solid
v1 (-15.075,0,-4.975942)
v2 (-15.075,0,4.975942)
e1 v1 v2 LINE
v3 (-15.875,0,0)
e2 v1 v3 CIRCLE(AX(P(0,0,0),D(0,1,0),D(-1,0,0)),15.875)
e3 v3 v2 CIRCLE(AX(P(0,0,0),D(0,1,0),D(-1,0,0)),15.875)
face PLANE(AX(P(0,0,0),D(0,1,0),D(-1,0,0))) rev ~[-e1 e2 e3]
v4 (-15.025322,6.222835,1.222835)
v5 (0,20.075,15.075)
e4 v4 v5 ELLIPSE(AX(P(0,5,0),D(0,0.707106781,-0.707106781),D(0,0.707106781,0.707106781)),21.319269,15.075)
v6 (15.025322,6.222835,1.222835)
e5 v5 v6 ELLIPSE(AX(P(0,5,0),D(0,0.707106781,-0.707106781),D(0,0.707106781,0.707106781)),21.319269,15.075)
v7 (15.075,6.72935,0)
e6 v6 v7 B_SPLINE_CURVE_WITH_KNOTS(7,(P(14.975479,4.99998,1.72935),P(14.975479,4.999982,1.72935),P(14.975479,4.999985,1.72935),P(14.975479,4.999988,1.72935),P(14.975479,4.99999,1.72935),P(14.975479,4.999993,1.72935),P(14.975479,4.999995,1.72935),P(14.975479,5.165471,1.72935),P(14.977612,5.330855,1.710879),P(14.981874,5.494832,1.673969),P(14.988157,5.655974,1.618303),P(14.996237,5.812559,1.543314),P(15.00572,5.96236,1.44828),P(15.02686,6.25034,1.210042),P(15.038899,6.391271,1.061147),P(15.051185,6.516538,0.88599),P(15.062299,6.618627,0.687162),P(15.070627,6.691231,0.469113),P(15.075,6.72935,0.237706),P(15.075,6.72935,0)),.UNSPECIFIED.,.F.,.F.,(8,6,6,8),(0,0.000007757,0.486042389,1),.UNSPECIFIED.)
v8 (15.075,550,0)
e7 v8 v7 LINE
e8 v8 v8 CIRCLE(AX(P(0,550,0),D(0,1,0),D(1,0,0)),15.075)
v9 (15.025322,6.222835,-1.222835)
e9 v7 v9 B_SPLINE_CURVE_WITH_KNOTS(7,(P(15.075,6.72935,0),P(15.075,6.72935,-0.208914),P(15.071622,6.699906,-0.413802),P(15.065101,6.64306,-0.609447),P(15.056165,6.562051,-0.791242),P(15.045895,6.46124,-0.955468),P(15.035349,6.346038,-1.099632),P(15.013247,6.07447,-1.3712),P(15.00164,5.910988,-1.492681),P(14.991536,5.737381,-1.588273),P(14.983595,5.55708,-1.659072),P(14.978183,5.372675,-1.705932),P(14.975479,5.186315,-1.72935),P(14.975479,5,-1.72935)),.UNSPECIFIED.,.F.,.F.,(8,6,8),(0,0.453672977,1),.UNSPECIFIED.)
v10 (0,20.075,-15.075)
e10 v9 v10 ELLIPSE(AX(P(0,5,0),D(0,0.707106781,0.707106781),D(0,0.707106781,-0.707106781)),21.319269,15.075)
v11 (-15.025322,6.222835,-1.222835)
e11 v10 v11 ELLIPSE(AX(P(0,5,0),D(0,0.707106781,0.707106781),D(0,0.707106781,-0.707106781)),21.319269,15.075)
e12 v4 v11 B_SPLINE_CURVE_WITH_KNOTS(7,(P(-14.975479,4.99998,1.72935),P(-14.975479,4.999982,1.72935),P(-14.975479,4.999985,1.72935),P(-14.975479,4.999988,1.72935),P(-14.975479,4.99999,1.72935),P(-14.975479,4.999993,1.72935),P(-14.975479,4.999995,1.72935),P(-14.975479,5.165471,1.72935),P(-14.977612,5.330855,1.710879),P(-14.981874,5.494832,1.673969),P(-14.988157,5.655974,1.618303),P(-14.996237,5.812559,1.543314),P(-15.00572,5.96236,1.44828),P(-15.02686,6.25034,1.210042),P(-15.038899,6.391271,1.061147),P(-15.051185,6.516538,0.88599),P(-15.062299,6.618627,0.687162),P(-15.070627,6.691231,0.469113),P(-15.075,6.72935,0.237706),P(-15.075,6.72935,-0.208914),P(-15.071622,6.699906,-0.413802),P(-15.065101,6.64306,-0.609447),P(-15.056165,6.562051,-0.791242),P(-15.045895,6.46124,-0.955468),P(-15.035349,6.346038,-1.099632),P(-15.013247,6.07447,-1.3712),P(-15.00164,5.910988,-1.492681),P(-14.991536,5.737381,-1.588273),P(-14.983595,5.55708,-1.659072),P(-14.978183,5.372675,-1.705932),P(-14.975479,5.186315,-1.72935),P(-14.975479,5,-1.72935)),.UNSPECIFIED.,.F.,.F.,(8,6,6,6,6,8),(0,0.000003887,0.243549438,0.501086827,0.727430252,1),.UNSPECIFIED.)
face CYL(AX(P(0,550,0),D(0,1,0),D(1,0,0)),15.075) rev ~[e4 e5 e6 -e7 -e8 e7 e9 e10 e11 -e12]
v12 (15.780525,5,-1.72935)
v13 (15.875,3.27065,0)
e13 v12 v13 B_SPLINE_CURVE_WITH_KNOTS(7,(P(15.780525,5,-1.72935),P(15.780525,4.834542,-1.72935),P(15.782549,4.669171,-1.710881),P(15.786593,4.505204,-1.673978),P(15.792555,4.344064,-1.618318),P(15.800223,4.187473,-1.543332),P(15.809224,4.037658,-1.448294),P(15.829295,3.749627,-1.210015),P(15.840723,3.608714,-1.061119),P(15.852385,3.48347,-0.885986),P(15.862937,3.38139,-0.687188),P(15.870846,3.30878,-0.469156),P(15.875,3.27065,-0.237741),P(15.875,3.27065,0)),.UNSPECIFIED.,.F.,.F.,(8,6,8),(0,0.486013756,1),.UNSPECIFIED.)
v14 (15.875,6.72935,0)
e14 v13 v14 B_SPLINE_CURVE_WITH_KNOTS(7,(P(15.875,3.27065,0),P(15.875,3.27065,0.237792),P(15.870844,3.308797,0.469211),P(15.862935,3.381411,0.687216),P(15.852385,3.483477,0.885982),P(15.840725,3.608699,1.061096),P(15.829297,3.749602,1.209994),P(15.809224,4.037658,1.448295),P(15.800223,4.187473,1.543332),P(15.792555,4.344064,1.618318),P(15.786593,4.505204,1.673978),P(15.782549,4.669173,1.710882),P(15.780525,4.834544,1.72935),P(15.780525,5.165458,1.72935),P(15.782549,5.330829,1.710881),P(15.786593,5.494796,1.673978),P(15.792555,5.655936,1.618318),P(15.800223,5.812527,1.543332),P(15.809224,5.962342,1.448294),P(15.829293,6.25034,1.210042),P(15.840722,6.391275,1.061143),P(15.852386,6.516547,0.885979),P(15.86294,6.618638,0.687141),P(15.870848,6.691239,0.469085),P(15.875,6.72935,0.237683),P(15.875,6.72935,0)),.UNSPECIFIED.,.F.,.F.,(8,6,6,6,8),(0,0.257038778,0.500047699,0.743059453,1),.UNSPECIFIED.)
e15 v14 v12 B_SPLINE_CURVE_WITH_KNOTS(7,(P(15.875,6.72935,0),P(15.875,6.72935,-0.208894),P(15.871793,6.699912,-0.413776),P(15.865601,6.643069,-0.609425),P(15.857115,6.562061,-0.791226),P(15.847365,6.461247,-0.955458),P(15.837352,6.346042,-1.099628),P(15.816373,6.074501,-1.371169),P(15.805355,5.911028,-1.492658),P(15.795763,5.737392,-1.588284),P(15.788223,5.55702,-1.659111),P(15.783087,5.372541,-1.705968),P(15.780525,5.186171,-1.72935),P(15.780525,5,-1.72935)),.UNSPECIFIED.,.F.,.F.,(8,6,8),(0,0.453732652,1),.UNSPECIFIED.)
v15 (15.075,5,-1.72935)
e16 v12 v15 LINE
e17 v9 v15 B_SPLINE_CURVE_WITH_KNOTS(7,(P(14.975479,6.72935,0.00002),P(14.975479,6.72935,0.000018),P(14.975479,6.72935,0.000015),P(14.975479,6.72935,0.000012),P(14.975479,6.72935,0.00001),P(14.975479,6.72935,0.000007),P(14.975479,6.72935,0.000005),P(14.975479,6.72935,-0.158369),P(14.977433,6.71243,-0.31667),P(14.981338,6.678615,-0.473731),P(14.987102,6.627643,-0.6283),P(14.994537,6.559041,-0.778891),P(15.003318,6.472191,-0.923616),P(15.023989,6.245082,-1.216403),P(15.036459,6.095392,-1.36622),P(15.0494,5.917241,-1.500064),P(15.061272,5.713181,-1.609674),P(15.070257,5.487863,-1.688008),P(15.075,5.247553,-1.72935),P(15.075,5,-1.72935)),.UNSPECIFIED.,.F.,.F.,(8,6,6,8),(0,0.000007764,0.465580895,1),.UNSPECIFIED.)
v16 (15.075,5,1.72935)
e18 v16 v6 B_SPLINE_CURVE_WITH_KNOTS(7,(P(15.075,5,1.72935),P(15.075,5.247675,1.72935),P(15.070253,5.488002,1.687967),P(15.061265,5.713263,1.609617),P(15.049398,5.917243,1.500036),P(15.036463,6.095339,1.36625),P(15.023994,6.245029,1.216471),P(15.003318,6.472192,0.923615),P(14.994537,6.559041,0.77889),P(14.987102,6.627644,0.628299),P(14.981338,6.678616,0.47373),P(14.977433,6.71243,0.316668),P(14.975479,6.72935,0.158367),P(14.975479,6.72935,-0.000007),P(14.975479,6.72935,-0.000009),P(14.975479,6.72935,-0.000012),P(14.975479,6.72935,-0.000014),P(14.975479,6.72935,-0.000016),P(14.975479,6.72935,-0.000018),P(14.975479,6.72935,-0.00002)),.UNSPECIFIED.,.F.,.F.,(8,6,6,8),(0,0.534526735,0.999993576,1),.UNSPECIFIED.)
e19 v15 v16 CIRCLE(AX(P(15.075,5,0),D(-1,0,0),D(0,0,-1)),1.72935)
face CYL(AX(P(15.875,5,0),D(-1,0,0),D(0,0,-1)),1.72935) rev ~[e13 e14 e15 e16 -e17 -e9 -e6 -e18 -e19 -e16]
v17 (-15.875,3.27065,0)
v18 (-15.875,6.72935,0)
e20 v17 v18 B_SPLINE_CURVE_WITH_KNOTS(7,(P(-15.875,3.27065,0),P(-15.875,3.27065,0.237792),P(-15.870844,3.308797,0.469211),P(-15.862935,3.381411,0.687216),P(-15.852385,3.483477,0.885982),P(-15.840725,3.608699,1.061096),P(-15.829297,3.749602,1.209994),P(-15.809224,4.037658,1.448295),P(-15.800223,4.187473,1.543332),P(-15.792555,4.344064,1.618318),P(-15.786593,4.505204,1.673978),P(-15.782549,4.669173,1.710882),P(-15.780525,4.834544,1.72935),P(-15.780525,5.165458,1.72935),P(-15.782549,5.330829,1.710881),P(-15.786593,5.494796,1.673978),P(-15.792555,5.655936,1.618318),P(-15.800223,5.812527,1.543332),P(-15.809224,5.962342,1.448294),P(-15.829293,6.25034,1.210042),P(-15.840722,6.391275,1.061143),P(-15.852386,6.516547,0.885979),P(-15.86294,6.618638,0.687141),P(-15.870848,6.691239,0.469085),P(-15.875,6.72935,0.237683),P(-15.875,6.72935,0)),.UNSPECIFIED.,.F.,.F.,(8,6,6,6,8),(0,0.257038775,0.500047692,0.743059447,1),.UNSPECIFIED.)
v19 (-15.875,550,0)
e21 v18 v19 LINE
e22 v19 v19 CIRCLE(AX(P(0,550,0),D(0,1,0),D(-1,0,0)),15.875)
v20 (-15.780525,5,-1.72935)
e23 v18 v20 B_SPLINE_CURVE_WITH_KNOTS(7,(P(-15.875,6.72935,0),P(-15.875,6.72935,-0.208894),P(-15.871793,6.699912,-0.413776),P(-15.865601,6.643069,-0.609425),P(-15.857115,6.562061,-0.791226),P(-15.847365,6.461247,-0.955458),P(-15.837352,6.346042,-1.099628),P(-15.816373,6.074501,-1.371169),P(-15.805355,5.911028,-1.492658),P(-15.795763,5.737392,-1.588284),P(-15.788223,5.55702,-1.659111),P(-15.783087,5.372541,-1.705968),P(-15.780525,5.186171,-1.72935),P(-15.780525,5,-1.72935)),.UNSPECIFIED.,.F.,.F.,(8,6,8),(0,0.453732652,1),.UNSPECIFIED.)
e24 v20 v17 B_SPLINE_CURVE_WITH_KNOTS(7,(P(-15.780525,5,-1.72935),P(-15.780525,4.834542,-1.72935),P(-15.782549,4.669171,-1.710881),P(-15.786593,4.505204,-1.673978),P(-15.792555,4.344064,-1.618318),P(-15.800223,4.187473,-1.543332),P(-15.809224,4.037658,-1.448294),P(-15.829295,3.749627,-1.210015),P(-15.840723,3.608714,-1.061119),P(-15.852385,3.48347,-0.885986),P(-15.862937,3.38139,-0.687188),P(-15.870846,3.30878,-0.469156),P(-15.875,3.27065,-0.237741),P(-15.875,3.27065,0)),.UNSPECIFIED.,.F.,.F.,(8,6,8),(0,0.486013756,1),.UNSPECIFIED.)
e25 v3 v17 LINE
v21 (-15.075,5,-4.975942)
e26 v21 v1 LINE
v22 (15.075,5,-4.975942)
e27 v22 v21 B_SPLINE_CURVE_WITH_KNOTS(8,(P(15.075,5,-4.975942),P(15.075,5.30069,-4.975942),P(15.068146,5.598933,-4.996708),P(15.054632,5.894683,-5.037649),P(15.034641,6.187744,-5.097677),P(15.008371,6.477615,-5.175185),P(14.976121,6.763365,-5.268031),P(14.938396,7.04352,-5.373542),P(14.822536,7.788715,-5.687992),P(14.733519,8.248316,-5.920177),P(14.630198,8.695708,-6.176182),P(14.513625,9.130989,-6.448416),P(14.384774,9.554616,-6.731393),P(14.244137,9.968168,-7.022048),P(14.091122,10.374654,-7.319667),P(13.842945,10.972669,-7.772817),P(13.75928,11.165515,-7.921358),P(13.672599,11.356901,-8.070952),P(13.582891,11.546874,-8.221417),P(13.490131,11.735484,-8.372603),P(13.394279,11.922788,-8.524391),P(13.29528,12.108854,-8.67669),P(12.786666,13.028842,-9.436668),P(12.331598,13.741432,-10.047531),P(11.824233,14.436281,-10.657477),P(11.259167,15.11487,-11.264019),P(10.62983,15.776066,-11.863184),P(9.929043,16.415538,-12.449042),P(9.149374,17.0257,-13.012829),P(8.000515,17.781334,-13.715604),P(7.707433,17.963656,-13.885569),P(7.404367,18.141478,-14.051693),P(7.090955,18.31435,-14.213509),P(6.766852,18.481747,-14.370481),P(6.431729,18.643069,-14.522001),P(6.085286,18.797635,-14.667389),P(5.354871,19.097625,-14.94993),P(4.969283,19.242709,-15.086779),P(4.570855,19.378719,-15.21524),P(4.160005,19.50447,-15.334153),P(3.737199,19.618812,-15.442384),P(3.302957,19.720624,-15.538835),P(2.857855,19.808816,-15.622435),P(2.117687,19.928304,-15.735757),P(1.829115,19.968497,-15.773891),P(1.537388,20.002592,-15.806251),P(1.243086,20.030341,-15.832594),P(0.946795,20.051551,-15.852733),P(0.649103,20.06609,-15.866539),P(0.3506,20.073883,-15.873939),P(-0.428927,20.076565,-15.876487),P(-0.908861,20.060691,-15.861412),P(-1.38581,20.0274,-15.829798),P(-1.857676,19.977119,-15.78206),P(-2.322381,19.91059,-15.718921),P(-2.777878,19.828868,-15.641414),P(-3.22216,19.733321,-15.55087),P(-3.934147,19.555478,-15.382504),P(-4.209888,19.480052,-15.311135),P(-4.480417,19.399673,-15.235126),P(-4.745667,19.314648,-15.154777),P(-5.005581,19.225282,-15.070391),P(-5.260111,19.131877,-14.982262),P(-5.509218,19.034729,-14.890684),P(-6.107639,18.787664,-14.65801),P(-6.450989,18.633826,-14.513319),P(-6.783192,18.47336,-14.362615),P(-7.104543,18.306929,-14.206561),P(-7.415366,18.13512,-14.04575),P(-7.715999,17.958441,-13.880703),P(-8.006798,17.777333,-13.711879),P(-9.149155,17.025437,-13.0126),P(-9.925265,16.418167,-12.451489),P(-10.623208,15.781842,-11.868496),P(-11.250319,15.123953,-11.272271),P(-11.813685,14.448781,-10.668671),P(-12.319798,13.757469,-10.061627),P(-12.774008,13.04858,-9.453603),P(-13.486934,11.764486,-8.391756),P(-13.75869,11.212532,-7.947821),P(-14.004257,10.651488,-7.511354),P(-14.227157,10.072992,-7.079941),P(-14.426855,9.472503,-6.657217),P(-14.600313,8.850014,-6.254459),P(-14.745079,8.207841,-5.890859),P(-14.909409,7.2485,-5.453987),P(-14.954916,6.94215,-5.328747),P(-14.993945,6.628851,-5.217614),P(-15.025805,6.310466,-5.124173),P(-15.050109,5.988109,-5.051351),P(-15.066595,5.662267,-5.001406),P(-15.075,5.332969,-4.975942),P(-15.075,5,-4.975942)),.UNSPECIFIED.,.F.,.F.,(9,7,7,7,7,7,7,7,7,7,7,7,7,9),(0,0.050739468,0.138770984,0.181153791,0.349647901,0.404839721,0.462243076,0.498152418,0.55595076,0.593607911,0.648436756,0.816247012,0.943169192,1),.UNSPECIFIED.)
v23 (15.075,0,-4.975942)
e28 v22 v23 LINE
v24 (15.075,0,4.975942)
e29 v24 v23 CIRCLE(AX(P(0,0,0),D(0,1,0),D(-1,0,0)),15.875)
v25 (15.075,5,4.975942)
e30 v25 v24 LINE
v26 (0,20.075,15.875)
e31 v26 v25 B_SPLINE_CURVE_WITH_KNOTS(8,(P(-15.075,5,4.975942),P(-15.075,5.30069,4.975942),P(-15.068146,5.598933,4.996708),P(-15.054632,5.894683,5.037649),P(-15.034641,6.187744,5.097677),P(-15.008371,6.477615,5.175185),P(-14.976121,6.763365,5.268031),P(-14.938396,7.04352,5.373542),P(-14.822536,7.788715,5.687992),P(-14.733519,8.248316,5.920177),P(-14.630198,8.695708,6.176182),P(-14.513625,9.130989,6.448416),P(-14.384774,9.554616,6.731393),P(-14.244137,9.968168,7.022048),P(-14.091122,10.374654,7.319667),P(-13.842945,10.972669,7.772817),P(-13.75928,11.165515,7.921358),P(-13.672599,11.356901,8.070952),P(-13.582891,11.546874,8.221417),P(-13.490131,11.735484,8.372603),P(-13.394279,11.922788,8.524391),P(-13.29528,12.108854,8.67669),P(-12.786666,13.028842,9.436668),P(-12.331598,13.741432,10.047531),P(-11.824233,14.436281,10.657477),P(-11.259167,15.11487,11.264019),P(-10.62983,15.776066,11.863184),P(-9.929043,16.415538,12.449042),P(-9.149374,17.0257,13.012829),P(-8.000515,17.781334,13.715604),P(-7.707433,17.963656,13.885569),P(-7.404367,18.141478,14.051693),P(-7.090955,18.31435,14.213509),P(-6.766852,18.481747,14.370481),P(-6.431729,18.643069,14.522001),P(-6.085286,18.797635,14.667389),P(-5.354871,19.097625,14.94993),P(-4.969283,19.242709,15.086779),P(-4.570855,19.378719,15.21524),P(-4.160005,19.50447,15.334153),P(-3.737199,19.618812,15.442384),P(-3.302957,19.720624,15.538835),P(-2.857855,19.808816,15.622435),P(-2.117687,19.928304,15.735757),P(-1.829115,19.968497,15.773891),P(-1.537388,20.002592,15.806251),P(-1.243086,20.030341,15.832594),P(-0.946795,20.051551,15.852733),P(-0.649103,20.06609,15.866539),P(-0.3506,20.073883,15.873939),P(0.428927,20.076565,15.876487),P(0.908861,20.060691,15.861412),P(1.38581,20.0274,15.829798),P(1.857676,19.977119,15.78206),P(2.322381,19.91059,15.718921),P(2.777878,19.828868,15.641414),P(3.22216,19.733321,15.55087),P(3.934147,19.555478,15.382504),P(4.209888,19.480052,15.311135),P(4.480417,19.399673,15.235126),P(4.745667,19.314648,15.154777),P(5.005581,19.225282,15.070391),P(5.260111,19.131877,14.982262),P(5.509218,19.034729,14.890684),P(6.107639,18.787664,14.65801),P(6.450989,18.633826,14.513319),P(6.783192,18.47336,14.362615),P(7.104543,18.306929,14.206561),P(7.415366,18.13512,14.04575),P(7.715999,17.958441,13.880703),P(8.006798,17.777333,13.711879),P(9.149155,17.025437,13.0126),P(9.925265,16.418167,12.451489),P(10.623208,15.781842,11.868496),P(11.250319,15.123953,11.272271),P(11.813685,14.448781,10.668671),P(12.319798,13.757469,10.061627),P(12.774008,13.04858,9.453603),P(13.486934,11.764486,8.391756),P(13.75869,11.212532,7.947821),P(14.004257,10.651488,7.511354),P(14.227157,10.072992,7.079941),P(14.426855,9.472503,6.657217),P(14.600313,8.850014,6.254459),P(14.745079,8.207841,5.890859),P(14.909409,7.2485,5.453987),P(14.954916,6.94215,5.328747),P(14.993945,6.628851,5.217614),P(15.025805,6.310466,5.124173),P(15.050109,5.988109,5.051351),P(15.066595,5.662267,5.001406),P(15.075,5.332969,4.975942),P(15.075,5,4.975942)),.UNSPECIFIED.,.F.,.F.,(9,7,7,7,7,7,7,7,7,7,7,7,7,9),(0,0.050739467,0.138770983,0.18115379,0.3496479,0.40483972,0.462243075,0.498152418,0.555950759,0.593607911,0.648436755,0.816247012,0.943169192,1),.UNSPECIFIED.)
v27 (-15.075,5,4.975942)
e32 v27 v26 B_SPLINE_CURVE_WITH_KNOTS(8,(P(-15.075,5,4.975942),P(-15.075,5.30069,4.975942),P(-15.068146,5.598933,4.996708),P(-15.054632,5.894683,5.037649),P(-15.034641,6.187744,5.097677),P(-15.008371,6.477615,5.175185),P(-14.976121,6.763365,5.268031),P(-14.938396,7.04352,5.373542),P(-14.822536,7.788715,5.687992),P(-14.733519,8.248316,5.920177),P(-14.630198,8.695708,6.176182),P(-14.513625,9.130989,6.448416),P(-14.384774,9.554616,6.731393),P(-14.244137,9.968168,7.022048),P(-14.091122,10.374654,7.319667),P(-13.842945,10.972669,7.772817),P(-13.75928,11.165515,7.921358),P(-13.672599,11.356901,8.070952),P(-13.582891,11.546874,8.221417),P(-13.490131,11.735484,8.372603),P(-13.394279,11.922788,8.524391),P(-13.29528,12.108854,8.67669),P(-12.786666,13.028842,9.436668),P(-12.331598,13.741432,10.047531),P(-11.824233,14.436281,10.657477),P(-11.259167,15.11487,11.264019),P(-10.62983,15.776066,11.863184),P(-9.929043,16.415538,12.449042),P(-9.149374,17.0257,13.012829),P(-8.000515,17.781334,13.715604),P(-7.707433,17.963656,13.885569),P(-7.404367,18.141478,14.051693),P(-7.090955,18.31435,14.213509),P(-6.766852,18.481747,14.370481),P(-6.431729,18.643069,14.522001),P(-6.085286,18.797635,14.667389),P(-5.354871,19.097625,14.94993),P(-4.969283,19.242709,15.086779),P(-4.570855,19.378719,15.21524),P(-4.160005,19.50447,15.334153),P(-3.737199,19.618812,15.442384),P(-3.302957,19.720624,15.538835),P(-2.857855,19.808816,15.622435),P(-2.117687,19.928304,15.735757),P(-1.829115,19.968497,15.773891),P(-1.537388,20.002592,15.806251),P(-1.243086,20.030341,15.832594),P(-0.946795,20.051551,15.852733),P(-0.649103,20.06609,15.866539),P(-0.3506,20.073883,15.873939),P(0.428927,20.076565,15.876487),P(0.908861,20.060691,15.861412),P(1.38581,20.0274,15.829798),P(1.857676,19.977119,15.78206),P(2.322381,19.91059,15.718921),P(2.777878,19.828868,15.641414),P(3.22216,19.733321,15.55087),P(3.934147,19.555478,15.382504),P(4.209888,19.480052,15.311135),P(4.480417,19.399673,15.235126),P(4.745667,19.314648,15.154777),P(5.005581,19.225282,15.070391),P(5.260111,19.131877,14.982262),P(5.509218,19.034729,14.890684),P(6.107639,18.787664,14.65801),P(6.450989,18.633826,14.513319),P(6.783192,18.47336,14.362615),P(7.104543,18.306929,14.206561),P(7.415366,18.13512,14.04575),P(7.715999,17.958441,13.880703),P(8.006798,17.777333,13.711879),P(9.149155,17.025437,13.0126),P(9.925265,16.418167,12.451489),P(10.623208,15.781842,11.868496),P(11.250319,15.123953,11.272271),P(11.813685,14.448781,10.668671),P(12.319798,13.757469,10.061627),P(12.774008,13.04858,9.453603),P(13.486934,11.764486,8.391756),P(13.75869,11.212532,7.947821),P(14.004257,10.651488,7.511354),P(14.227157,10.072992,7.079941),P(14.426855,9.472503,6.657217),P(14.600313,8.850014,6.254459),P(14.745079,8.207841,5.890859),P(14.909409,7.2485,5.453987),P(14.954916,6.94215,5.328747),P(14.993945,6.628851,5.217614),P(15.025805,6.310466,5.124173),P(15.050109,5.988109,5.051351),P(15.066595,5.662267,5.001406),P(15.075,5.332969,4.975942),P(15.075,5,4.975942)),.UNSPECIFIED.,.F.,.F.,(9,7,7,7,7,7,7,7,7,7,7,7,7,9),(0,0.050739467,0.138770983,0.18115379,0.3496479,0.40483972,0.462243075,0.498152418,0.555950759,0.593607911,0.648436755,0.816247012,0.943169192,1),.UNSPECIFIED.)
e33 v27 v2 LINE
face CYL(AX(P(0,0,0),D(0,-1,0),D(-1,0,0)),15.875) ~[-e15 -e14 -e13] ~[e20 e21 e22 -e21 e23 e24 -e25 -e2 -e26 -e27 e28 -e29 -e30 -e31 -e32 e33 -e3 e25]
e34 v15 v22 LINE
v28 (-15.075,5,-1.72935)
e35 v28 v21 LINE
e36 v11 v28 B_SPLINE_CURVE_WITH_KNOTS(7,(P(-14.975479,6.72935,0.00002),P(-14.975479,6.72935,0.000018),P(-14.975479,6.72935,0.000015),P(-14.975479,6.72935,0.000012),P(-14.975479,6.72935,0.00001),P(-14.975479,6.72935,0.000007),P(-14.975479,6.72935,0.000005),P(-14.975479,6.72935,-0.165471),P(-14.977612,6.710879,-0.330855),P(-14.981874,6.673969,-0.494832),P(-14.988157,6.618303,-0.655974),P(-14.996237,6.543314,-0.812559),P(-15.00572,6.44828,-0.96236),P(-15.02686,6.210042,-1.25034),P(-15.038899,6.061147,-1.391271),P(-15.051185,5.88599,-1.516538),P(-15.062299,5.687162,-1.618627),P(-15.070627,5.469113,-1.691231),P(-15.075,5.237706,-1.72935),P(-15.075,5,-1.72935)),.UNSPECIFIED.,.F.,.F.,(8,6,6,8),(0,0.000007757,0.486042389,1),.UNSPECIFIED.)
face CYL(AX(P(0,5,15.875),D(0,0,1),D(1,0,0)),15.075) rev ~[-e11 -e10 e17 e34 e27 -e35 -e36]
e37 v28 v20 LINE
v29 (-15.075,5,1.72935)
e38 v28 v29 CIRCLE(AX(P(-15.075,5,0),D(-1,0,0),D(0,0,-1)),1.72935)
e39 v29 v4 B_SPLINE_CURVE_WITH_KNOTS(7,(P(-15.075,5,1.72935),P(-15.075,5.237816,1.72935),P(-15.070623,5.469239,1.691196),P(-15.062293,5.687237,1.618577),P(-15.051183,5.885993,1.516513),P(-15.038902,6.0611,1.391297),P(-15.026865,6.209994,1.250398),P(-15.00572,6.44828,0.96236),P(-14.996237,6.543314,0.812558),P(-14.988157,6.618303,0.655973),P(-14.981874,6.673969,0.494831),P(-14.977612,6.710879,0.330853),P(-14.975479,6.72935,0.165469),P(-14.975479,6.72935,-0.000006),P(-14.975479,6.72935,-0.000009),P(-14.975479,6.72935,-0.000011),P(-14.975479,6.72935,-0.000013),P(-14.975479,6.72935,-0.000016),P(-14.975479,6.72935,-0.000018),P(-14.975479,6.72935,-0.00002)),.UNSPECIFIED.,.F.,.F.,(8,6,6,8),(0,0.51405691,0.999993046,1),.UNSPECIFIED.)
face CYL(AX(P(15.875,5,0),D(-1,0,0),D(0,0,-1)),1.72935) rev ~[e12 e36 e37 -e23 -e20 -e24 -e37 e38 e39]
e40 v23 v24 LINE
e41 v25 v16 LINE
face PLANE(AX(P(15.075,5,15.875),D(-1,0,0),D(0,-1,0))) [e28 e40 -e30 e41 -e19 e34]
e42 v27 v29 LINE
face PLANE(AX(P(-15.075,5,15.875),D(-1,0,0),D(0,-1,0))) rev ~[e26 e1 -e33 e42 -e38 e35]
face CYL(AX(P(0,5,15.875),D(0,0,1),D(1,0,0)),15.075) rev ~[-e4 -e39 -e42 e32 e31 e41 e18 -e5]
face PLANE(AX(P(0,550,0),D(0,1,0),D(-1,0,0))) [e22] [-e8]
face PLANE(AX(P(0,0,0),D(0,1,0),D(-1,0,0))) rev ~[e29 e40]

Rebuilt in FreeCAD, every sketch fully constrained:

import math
import FreeCAD as App
import Part
import Sketcher

V = App.Vector
Q = App.Units.Quantity

doc = App.newDocument("Part")
body = doc.addObject("PartDesign::Body", "Body")

# Sketch on XZ plane
sketch1 = body.newObject("Sketcher::SketchObject", "Sketch")
sketch1.AttachmentSupport = (doc.getObject("XZ_Plane"), [""])
sketch1.MapMode = "FlatFace"
sketch1.addGeometry(Part.Circle(V(0, 0, 0), V(0, 0, 1), 16), False)
sketch1.addConstraint([
    Sketcher.Constraint("Coincident", 0, 3, -1, 1),
    Sketcher.Constraint("Diameter", 0, Q("31.75 mm")),
])
pad1 = body.newObject("PartDesign::Pad", "Pad")
pad1.Profile = sketch1
pad1.Length = 550
pad1.Reversed = True

# Sketch on XZ plane
sketch2 = body.newObject("Sketcher::SketchObject", "Sketch001")
sketch2.AttachmentSupport = (doc.getObject("XZ_Plane"), [""])
sketch2.MapMode = "FlatFace"
sketch2.AttachmentOffset = App.Placement(V(0, 0, -550), App.Rotation())
sketch2.addGeometry(Part.Circle(V(0, 0, 0), V(0, 0, 1), 15), False)
sketch2.addConstraint([
    Sketcher.Constraint("Coincident", 0, 3, -1, 1),
    Sketcher.Constraint("Diameter", 0, Q("30.15 mm")),
])
pocket1 = body.newObject("PartDesign::Pocket", "Pocket")
pocket1.Profile = sketch2
pocket1.Type = "ThroughAll"
pocket1.Reversed = True

# Sketch on XY plane
sketch3 = body.newObject("Sketcher::SketchObject", "Sketch002")
sketch3.AttachmentSupport = (doc.getObject("XY_Plane"), [""])
sketch3.MapMode = "FlatFace"
sketch3.AttachmentOffset = App.Placement(V(0, 0, 15.875), App.Rotation())
sketch3.addGeometry([
    Part.LineSegment(V(15, 0, 0), V(15, 5, 0)),
    Part.ArcOfCircle(Part.Circle(V(0, 5, 0), V(0, 0, 1), 15), math.radians(0), math.radians(180)),
    Part.LineSegment(V(-15, 5, 0), V(-15, 0, 0)),
    Part.LineSegment(V(-15, 0, 0), V(15, 0, 0)),
], False)
sketch3.addConstraint([
    Sketcher.Constraint("Tangent", 0, 2, 1, 1),
    Sketcher.Constraint("Tangent", 1, 2, 2, 1),
    Sketcher.Constraint("Coincident", 2, 2, 3, 1),
    Sketcher.Constraint("Coincident", 3, 2, 0, 1),
    Sketcher.Constraint("Vertical", 0),
    Sketcher.Constraint("Vertical", 2),
    Sketcher.Constraint("Horizontal", 3),
    Sketcher.Constraint("Symmetric", 2, 2, 3, 2, -1, 1),
    Sketcher.Constraint("DistanceY", 0, 1, 0, 2, Q("5 mm")),
    Sketcher.Constraint("Radius", 1, Q("15.075 mm")),
])
pocket2 = body.newObject("PartDesign::Pocket", "Pocket001")
pocket2.Profile = sketch3
pocket2.Type = "ThroughAll"

# Sketch on YZ plane
sketch4 = body.newObject("Sketcher::SketchObject", "Sketch003")
sketch4.AttachmentSupport = (doc.getObject("YZ_Plane"), [""])
sketch4.MapMode = "FlatFace"
sketch4.AttachmentOffset = App.Placement(V(0, 0, 15.875), App.Rotation())
sketch4.addGeometry(Part.Circle(V(5, 0, 0), V(0, 0, 1), 1.7), False)
sketch4.addConstraint([
    Sketcher.Constraint("PointOnObject", 0, 3, -1),
    Sketcher.Constraint("DistanceX", -1, 1, 0, 3, Q("5 mm")),
    Sketcher.Constraint("Diameter", 0, Q("3.4587 mm")),
])
doc.recompute()
hole = body.newObject("PartDesign::Hole", "Hole")
hole.Profile = sketch4
hole.ThreadType = "None"
hole.Diameter = 3.4587
hole.DepthType = "ThroughAll"

doc.recompute()
